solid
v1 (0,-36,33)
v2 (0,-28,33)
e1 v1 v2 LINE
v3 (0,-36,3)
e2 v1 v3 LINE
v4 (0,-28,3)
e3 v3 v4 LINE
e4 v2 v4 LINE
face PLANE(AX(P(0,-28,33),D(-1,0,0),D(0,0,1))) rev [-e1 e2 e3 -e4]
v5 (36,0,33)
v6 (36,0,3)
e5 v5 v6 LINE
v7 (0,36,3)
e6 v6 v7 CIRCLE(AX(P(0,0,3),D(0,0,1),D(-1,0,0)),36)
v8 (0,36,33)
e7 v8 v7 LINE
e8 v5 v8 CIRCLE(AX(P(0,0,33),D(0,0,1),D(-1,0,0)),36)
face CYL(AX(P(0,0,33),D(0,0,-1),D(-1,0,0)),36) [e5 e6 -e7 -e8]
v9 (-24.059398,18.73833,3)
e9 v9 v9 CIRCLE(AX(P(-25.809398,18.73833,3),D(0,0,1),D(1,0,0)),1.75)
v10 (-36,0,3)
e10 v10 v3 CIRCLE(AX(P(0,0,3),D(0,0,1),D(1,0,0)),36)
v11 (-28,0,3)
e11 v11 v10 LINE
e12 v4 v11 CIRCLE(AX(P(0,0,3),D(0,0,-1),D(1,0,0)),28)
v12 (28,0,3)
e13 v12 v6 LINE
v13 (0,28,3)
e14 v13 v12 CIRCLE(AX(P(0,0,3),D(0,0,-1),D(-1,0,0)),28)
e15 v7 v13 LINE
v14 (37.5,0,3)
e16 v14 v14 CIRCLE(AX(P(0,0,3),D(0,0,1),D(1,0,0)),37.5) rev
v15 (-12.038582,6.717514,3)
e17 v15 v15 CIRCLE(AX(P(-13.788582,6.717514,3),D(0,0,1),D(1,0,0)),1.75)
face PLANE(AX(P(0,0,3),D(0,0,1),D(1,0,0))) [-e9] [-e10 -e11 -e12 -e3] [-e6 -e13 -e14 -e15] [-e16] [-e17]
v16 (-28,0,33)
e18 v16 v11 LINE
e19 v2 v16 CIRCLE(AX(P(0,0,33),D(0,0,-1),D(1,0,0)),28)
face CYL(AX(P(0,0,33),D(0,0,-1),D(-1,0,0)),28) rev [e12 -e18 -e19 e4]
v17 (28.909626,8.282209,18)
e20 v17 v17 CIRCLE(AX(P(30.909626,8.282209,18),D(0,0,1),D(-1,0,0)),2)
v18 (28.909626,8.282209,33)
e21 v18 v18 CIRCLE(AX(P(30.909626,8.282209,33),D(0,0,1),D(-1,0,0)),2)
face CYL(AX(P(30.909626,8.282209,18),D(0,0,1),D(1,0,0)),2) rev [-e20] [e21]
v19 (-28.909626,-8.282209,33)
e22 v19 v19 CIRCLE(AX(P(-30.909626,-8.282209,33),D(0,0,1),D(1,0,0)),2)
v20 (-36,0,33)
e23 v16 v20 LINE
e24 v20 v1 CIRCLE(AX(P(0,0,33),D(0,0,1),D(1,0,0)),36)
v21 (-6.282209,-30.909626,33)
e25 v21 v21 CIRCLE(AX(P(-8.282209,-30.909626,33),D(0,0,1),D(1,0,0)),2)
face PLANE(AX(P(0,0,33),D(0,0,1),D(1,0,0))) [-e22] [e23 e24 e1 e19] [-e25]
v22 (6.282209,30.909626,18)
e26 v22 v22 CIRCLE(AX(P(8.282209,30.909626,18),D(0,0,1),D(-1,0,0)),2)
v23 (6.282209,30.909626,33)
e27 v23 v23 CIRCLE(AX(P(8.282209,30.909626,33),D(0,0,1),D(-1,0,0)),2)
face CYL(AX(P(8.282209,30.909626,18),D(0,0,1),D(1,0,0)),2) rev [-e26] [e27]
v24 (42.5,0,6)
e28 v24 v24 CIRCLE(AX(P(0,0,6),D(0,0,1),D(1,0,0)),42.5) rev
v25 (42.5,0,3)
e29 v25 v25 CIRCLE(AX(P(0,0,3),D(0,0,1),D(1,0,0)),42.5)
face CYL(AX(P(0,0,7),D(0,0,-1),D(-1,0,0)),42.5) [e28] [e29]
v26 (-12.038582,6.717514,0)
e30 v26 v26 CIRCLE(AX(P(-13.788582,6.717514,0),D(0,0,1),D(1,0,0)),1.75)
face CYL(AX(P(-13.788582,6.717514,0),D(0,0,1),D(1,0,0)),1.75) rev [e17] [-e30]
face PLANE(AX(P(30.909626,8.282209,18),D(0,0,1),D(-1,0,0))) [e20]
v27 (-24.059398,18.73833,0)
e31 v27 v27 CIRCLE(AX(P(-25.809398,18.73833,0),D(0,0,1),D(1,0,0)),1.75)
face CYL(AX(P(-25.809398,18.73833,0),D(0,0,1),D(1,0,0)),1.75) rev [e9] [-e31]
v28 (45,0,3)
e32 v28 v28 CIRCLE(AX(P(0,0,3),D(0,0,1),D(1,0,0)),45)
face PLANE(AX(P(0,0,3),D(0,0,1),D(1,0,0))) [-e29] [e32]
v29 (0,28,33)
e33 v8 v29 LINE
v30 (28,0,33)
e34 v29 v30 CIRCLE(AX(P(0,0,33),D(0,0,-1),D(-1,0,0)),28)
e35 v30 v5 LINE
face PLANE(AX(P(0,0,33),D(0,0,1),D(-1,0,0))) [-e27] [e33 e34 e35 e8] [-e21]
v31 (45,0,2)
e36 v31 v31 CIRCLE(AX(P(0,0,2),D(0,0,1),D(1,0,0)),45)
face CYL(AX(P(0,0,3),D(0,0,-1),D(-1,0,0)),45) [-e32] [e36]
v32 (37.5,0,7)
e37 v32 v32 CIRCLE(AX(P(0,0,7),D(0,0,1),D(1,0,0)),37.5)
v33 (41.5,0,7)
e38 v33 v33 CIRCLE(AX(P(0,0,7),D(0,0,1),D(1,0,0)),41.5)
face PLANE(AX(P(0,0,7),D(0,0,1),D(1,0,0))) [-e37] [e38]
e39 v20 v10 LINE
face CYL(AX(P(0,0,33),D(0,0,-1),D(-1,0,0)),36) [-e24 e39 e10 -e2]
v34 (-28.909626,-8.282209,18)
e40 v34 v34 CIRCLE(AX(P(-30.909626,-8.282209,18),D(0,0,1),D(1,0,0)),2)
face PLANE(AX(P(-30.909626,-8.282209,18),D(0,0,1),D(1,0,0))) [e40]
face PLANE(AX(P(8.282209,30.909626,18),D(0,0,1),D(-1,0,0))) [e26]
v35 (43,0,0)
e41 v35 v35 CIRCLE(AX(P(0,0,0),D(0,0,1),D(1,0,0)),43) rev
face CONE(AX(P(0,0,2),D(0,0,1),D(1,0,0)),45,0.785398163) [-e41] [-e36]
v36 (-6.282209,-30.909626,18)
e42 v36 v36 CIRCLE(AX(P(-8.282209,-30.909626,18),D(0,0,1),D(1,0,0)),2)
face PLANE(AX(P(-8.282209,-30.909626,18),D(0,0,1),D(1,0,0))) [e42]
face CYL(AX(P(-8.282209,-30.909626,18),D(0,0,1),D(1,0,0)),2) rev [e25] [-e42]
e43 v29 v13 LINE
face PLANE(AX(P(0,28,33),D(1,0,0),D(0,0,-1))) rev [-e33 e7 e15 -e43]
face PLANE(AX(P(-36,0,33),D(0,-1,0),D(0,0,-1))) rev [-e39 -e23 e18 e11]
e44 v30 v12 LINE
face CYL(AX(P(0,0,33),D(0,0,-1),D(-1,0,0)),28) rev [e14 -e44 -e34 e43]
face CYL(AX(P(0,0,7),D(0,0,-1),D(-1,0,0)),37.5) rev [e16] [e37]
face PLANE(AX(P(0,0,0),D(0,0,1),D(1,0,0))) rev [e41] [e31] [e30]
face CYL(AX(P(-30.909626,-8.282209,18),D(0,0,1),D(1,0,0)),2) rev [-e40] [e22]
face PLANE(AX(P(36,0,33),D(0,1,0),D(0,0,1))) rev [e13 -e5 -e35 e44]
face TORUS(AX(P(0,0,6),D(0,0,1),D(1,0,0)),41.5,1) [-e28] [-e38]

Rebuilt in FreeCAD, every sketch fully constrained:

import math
import FreeCAD as App
import Part
import Sketcher
from FreeCAD import Vector


def edges_at(feature, points):
    """Names of the edges that pass closest to the given points."""
    edges = feature.Shape.Edges
    near = lambda p: min(range(len(edges)), key=lambda i: edges[i].distToShape(Part.Vertex(*p))[0])
    return sorted({f"Edge{near(p) + 1}" for p in points})

doc = App.newDocument("Part")
body = doc.addObject("PartDesign::Body", "Body")

# Sketch on XY plane
sketch1 = doc.addObject("Sketcher::SketchObject", "Sketch")
body.addObject(sketch1)
sketch1.AttachmentSupport = (doc.XY_Plane, [""])
sketch1.MapMode = "FlatFace"
sketch1.addGeometry(Part.Circle(Vector(0, 0, 0), Vector(0, 0, 1), 45), False)
sketch1.addConstraint([
    Sketcher.Constraint("Coincident", 0, 3, -1, 1),
    Sketcher.Constraint("Diameter", 0, 90.0),
])
pad1 = doc.addObject("PartDesign::Pad", "Pad")
body.addObject(pad1)
pad1.Profile = sketch1
pad1.Length = 3

# Sketch on XY plane
sketch2 = doc.addObject("Sketcher::SketchObject", "Sketch001")
body.addObject(sketch2)
sketch2.AttachmentSupport = (doc.XY_Plane, [""])
sketch2.MapMode = "FlatFace"
sketch2.AttachmentOffset = App.Placement(Vector(0, 0, 3), App.Rotation())
sketch2.addGeometry([
    Part.Circle(Vector(0, 0, 0), Vector(0, 0, 1), 42.5),
    Part.Circle(Vector(0, 0, 0), Vector(0, 0, 1), 37.5),
], False)
sketch2.addConstraint([
    Sketcher.Constraint("Coincident", 0, 3, -1, 1),
    Sketcher.Constraint("Coincident", 1, 3, -1, 1),
    Sketcher.Constraint("Diameter", 0, 85.0),
    Sketcher.Constraint("Diameter", 1, 75.0),
])
pad2 = doc.addObject("PartDesign::Pad", "Pad001")
body.addObject(pad2)
pad2.Profile = sketch2
pad2.Length = 4
doc.recompute()

chamfer = doc.addObject("PartDesign::Chamfer", "Chamfer")
body.addObject(chamfer)
chamfer.Base = (pad2, edges_at(pad2, [(-45, 0, 0)]))
chamfer.Size = 2
doc.recompute()

fillet = doc.addObject("PartDesign::Fillet", "Fillet")
body.addObject(fillet)
fillet.Base = (chamfer, edges_at(chamfer, [(-42.5, 0, 7)]))
fillet.Radius = 1

# Sketch on XY plane
sketch3 = doc.addObject("Sketcher::SketchObject", "Sketch002")
body.addObject(sketch3)
sketch3.AttachmentSupport = (doc.XY_Plane, [""])
sketch3.MapMode = "FlatFace"
sketch3.AttachmentOffset = App.Placement(Vector(0, 0, 3), App.Rotation())
sketch3.addGeometry([
    Part.LineSegment(Vector(-28, 0, 0), Vector(-36, 0, 0)),
    Part.ArcOfCircle(Part.Circle(Vector(0, 0, 0), Vector(0, 0, 1), 36), math.radians(180), math.radians(270)),
    Part.LineSegment(Vector(0, -36, 0), Vector(0, -28, 0)),
    Part.ArcOfCircle(Part.Circle(Vector(0, 0, 0), Vector(0, 0, 1), 28), math.radians(-180), math.radians(-90)),
], False)
sketch3.addConstraint([
    Sketcher.Constraint("Coincident", 0, 2, 1, 1),
    Sketcher.Constraint("Coincident", 1, 2, 2, 1),
    Sketcher.Constraint("Coincident", 2, 2, 3, 2),
    Sketcher.Constraint("Coincident", 3, 1, 0, 1),
    Sketcher.Constraint("Horizontal", 0),
    Sketcher.Constraint("Vertical", 2),
    Sketcher.Constraint("Coincident", 1, 3, -1, 1),
    Sketcher.Constraint("Coincident", 3, 3, -1, 1),
    Sketcher.Constraint("PointOnObject", 0, 2, -1),
    Sketcher.Constraint("PointOnObject", 1, 2, -2),
    Sketcher.Constraint("Radius", 1, 36.0),
    Sketcher.Constraint("Radius", 3, 28.0),
])
pad3 = doc.addObject("PartDesign::Pad", "Pad002")
body.addObject(pad3)
pad3.Profile = sketch3
pad3.Length = 30

# Sketch on XY plane
sketch4 = doc.addObject("Sketcher::SketchObject", "Sketch003")
body.addObject(sketch4)
sketch4.AttachmentSupport = (doc.XY_Plane, [""])
sketch4.MapMode = "FlatFace"
sketch4.AttachmentOffset = App.Placement(Vector(0, 0, 33), App.Rotation())
sketch4.addGeometry([
    Part.Circle(Vector(-30.909626, -8.282209, 0), Vector(0, 0, 1), 2),
    Part.Circle(Vector(-8.282209, -30.909626, 0), Vector(0, 0, 1), 2),
], False)
sketch4.addConstraint([
    Sketcher.Constraint("Equal", 0, 1),
    Sketcher.Constraint("Diameter", 0, 4.0),
    Sketcher.Constraint("DistanceY", 0, 3, -1, 1, 8.282209),
    Sketcher.Constraint("DistanceX", 1, 3, -1, 1, 8.282209),
    Sketcher.Constraint("DistanceX", 0, 3, -1, 1, 30.909626),
    Sketcher.Constraint("DistanceY", 1, 3, -1, 1, 30.909626),
])
pocket1 = doc.addObject("PartDesign::Pocket", "Pocket")
body.addObject(pocket1)
pocket1.Profile = sketch4
pocket1.Length = 15
doc.recompute()

polarpattern = doc.addObject("PartDesign::PolarPattern", "PolarPattern")
body.addObject(polarpattern)
polarpattern.Originals = [pad3, pocket1]
polarpattern.Axis = (doc.Z_Axis, [""])
polarpattern.Angle = 360
polarpattern.Occurrences = 2
body.Tip = polarpattern

# Sketch on XY plane
sketch5 = doc.addObject("Sketcher::SketchObject", "Sketch004")
body.addObject(sketch5)
sketch5.AttachmentSupport = (doc.XY_Plane, [""])
sketch5.MapMode = "FlatFace"
sketch5.AttachmentOffset = App.Placement(Vector(0, 0, 3), App.Rotation())
sketch5.addGeometry([
    Part.Circle(Vector(-25.809398, 18.73833, 0), Vector(0, 0, 1), 1.75),
    Part.Circle(Vector(-13.788582, 6.717514, 0), Vector(0, 0, 1), 1.75),
], False)
sketch5.addConstraint([
    Sketcher.Constraint("Equal", 0, 1),
    Sketcher.Constraint("Diameter", 0, 3.5),
    Sketcher.Constraint("DistanceY", -1, 1, 0, 3, 18.73833),
    Sketcher.Constraint("DistanceX", 0, 3, -1, 1, 25.809398),
    Sketcher.Constraint("DistanceX", 1, 3, -1, 1, 13.788582),
    Sketcher.Constraint("DistanceY", -1, 1, 1, 3, 6.717514),
])
pocket2 = doc.addObject("PartDesign::Pocket", "Pocket001")
body.addObject(pocket2)
pocket2.Profile = sketch5
pocket2.Type = "ThroughAll"

doc.recompute()
